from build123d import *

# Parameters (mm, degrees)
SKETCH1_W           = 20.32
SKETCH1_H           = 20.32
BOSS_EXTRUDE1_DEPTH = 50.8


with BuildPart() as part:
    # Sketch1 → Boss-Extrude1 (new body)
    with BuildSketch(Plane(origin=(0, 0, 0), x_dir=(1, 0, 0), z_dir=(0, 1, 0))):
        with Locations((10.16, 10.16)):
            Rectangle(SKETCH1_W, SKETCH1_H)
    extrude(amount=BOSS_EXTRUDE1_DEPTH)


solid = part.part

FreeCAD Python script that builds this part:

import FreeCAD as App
import Part
import Sketcher

V = App.Vector
Q = App.Units.Quantity


def add_polygon(sketch, points):
    """Adds a closed chain of lines whose ends are joined by coincident constraints."""
    first, n = sketch.GeometryCount, len(points)
    for a, b in zip(points, points[1:] + points[:1]):
        sketch.addGeometry(Part.LineSegment(App.Vector(*a, 0), App.Vector(*b, 0)), False)
    for i in range(n):
        sketch.addConstraint(Sketcher.Constraint("Coincident", first + i, 2, first + (i + 1) % n, 1))

doc = App.newDocument("Part")
params = doc.addObject("Spreadsheet::Sheet", "Params")
for row, (alias, value) in enumerate([
    ("sketch1_width", "0.8 in"),
    ("pad1_length", "2 in"),
], start=1):
    params.set(f"A{row}", alias)
    params.set(f"B{row}", "=" + value)
    params.setAlias(f"B{row}", alias)

body = doc.addObject("PartDesign::Body", "Body")

# Sketch on XZ plane
sketch1 = body.newObject("Sketcher::SketchObject", "Sketch")
sketch1.AttachmentSupport = (doc.getObject("XZ_Plane"), [""])
sketch1.MapMode = "FlatFace"
add_polygon(sketch1, [(0, -20.32), (0, 0), (20.32, 0), (20.32, -20.32)])  # lines 0-3
sketch1.addConstraint([
    Sketcher.Constraint("Vertical", 0),
    Sketcher.Constraint("Horizontal", 1),
    Sketcher.Constraint("Vertical", 2),
    Sketcher.Constraint("Horizontal", 3),
    Sketcher.Constraint("Coincident", 0, 2, -1, 1),
    Sketcher.Constraint("Equal", 3, 0),
    Sketcher.Constraint("DistanceX", 1, 1, 1, 2, Q("0.8 in")),
])
sketch1.setExpression("Constraints[10]", "Params.sketch1_width")
pad1 = body.newObject("PartDesign::Pad", "Pad")
pad1.Profile = sketch1
pad1.setExpression("Length", "Params.pad1_length")
pad1.Reversed = True

doc.recompute()
